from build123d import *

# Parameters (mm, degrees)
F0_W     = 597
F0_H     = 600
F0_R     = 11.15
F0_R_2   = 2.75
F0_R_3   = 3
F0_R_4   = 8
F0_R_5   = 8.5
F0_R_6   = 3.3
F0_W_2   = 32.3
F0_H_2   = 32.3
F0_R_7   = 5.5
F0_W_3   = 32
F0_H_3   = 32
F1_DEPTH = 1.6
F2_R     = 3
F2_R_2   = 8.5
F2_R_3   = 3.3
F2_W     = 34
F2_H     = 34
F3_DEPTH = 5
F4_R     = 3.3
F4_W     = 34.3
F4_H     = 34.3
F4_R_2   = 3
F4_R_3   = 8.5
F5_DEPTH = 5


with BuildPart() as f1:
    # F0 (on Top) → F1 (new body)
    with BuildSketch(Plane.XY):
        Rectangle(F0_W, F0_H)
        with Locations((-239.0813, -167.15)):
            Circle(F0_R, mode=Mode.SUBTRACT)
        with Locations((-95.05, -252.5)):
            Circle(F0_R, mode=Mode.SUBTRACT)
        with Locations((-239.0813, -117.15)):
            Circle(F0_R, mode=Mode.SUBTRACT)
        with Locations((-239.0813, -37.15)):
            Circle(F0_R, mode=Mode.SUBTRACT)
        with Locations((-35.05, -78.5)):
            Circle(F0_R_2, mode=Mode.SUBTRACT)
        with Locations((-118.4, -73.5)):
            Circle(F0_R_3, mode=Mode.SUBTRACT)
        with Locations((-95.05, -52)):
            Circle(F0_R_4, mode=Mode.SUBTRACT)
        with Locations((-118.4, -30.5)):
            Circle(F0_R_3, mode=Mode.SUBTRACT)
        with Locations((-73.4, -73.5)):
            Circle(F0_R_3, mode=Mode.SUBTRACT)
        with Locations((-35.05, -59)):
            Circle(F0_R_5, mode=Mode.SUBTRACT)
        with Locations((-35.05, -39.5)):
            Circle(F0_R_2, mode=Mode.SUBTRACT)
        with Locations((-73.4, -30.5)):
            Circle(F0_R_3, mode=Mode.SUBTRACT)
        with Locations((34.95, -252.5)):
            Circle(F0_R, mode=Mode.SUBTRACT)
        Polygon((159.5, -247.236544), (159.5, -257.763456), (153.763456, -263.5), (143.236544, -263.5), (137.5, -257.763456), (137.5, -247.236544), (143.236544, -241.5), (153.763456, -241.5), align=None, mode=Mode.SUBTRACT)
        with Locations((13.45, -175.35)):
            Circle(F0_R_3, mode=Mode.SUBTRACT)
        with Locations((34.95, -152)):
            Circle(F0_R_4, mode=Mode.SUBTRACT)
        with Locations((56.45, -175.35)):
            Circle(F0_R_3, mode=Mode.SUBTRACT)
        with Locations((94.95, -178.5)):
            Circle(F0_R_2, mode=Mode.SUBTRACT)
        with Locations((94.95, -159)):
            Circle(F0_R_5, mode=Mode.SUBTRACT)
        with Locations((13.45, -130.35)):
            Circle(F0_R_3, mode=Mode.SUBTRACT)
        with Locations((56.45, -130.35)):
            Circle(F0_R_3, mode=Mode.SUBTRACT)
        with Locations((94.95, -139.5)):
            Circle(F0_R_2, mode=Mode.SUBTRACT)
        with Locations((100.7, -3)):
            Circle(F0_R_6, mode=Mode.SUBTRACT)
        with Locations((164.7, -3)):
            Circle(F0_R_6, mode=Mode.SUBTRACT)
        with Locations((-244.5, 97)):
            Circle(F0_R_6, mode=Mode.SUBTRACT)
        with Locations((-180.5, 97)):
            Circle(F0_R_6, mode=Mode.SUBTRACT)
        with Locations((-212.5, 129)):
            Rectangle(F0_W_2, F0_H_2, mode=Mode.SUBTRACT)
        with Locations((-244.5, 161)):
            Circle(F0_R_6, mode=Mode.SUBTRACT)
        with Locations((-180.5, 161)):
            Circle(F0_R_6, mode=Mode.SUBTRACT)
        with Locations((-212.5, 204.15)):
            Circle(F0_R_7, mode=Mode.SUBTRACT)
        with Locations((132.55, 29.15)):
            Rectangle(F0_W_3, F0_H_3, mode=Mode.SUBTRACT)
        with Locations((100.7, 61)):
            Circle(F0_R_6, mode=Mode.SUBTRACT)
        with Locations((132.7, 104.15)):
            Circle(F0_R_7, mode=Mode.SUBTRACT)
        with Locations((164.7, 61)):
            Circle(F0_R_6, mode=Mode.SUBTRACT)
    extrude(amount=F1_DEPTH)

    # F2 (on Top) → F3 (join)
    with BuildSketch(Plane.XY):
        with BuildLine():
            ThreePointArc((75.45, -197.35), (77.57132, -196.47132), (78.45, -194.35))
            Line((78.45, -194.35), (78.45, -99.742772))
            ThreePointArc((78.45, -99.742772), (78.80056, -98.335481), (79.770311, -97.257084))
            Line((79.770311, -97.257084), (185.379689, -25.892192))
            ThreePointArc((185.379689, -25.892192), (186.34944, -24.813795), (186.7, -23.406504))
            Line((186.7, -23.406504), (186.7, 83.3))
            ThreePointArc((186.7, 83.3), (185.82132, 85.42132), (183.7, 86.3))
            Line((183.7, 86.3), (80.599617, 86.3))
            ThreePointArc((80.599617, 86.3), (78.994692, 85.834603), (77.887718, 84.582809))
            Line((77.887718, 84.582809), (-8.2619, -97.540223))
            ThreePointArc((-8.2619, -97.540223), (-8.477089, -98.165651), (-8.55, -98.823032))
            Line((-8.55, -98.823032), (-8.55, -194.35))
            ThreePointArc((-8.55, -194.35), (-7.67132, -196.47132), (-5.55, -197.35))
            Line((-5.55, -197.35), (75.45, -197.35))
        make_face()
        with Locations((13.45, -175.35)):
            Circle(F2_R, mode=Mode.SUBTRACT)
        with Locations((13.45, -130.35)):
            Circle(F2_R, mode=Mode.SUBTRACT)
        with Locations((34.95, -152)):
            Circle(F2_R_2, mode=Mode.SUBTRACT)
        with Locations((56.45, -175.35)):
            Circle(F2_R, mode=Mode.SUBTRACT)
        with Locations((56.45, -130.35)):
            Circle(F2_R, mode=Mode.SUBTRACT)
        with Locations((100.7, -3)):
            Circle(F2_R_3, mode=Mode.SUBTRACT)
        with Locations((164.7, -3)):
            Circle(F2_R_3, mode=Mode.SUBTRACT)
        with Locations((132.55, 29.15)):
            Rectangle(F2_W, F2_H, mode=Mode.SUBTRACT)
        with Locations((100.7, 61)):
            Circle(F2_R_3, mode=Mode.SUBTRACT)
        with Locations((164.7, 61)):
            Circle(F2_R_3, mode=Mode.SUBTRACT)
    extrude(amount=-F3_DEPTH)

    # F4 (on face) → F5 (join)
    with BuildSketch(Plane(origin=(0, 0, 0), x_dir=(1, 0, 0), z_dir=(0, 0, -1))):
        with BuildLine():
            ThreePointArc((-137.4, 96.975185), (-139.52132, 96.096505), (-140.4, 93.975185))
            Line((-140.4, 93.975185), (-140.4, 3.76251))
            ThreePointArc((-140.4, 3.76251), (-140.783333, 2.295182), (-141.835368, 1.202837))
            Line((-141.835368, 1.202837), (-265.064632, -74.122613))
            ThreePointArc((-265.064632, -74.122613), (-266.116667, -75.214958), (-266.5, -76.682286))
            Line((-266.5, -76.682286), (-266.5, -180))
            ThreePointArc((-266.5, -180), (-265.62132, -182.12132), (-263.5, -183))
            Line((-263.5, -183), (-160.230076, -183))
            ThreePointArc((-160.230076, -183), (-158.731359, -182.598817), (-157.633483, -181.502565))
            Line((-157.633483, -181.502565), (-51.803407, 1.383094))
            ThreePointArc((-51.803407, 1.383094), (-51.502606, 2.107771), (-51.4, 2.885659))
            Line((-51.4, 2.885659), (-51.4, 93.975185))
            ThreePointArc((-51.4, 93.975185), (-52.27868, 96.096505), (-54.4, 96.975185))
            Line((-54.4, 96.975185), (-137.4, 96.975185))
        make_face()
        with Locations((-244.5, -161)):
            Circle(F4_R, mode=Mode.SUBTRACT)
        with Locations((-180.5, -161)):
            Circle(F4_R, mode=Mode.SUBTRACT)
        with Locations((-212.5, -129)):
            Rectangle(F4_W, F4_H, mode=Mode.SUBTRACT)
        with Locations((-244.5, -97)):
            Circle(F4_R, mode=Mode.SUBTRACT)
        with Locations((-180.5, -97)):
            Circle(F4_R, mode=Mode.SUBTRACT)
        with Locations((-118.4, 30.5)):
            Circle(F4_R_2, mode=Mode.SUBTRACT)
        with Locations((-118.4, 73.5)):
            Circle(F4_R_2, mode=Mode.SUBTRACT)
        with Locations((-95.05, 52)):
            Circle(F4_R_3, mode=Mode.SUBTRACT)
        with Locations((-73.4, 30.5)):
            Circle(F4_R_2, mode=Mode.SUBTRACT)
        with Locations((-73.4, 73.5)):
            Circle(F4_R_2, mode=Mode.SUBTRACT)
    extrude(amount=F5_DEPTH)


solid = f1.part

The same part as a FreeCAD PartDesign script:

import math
import FreeCAD as App
import Part
import Sketcher
from FreeCAD import Vector
Q = App.Units.Quantity


def add_polygon(sketch, points):
    """Adds a closed chain of lines whose ends are joined by coincident constraints."""
    first, n = sketch.GeometryCount, len(points)
    for a, b in zip(points, points[1:] + points[:1]):
        sketch.addGeometry(Part.LineSegment(App.Vector(*a, 0), App.Vector(*b, 0)), False)
    for i in range(n):
        sketch.addConstraint(Sketcher.Constraint("Coincident", first + i, 2, first + (i + 1) % n, 1))

doc = App.newDocument("Part")
body = doc.addObject("PartDesign::Body", "Body")

# Sketch on XY plane
sketch1 = body.newObject("Sketcher::SketchObject", "Sketch")
sketch1.AttachmentSupport = (doc.getObject("XY_Plane"), [""])
sketch1.MapMode = "FlatFace"
add_polygon(sketch1, [(-298.5, 300), (-298.5, -300), (298.5, -300), (298.5, 300)])  # lines 0-3
sketch1.addGeometry(Part.Circle(Vector(-239.0813, -167.15, 0), Vector(0, 0, 1), 11.15), False)  # 4
sketch1.addGeometry(Part.Circle(Vector(-95.05, -252.5, 0), Vector(0, 0, 1), 11.15), False)  # 5
sketch1.addGeometry(Part.Circle(Vector(-239.0813, -117.15, 0), Vector(0, 0, 1), 11.15), False)  # 6
sketch1.addGeometry(Part.Circle(Vector(-239.0813, -37.15, 0), Vector(0, 0, 1), 11.15), False)  # 7
sketch1.addGeometry(Part.Circle(Vector(-118.4, -73.5, 0), Vector(0, 0, 1), 3), False)  # 8
sketch1.addGeometry(Part.Circle(Vector(-95.05, -52, 0), Vector(0, 0, 1), 8), False)  # 9
sketch1.addGeometry(Part.Circle(Vector(-118.4, -30.5, 0), Vector(0, 0, 1), 3), False)  # 10
sketch1.addGeometry(Part.Circle(Vector(-73.4, -73.5, 0), Vector(0, 0, 1), 3), False)  # 11
sketch1.addGeometry(Part.Circle(Vector(-73.4, -30.5, 0), Vector(0, 0, 1), 3), False)  # 12
sketch1.addGeometry(Part.Circle(Vector(34.95, -252.5, 0), Vector(0, 0, 1), 11.15), False)  # 13
sketch1.addGeometry(Part.Circle(Vector(13.45, -175.35, 0), Vector(0, 0, 1), 3), False)  # 14
sketch1.addGeometry(Part.Circle(Vector(56.45, -175.35, 0), Vector(0, 0, 1), 3), False)  # 15
sketch1.addGeometry(Part.Circle(Vector(34.95, -152, 0), Vector(0, 0, 1), 8), False)  # 16
add_polygon(sketch1, [(153.763456, -241.5), (159.5, -247.236544), (159.5, -257.763456), (153.763456, -263.5), (143.236544, -263.5), (137.5, -257.763456), (137.5, -247.236544), (143.236544, -241.5)])  # lines 17-24
sketch1.addGeometry(Part.Circle(Vector(94.95, -178.5, 0), Vector(0, 0, 1), 2.75), False)  # 25
sketch1.addGeometry(Part.Circle(Vector(94.95, -159, 0), Vector(0, 0, 1), 8.5), False)  # 26
sketch1.addGeometry(Part.Circle(Vector(13.45, -130.35, 0), Vector(0, 0, 1), 3), False)  # 27
sketch1.addGeometry(Part.Circle(Vector(56.45, -130.35, 0), Vector(0, 0, 1), 3), False)  # 28
sketch1.addGeometry(Part.Circle(Vector(-35.05, -78.5, 0), Vector(0, 0, 1), 2.75), False)  # 29
sketch1.addGeometry(Part.Circle(Vector(-35.05, -59, 0), Vector(0, 0, 1), 8.5), False)  # 30
sketch1.addGeometry(Part.Circle(Vector(-35.05, -39.5, 0), Vector(0, 0, 1), 2.75), False)  # 31
sketch1.addGeometry(Part.Circle(Vector(94.95, -139.5, 0), Vector(0, 0, 1), 2.75), False)  # 32
sketch1.addGeometry(Part.Circle(Vector(-244.5, 97, 0), Vector(0, 0, 1), 3.3), False)  # 33
add_polygon(sketch1, [(-196.35, 112.85), (-228.65, 112.85), (-228.65, 145.15), (-196.35, 145.15)])  # lines 34-37
sketch1.addGeometry(Part.Circle(Vector(-180.5, 97, 0), Vector(0, 0, 1), 3.3), False)  # 38
sketch1.addGeometry(Part.Circle(Vector(-244.5, 161, 0), Vector(0, 0, 1), 3.3), False)  # 39
sketch1.addGeometry(Part.Circle(Vector(-212.5, 204.15, 0), Vector(0, 0, 1), 5.5), False)  # 40
sketch1.addGeometry(Part.Circle(Vector(-180.5, 161, 0), Vector(0, 0, 1), 3.3), False)  # 41
sketch1.addGeometry(Part.Circle(Vector(100.7, -3, 0), Vector(0, 0, 1), 3.3), False)  # 42
sketch1.addGeometry(Part.Circle(Vector(164.7, -3, 0), Vector(0, 0, 1), 3.3), False)  # 43
add_polygon(sketch1, [(148.55, 13.15), (116.55, 13.15), (116.55, 45.15), (148.55, 45.15)])  # lines 44-47
sketch1.addGeometry(Part.Circle(Vector(100.7, 61, 0), Vector(0, 0, 1), 3.3), False)  # 48
sketch1.addGeometry(Part.Circle(Vector(164.7, 61, 0), Vector(0, 0, 1), 3.3), False)  # 49
sketch1.addGeometry(Part.Circle(Vector(132.7, 104.15, 0), Vector(0, 0, 1), 5.5), False)  # 50
sketch1.addConstraint([
    Sketcher.Constraint("Vertical", 0),
    Sketcher.Constraint("Horizontal", 1),
    Sketcher.Constraint("Vertical", 2),
    Sketcher.Constraint("Horizontal", 3),
    Sketcher.Constraint("Vertical", 18),
    Sketcher.Constraint("Horizontal", 20),
    Sketcher.Constraint("Vertical", 22),
    Sketcher.Constraint("Horizontal", 24),
    Sketcher.Constraint("Horizontal", 34),
    Sketcher.Constraint("Vertical", 35),
    Sketcher.Constraint("Horizontal", 36),
    Sketcher.Constraint("Vertical", 37),
    Sketcher.Constraint("Horizontal", 44),
    Sketcher.Constraint("Vertical", 45),
    Sketcher.Constraint("Horizontal", 46),
    Sketcher.Constraint("Vertical", 47),
    Sketcher.Constraint("Equal", 4, 5),
    Sketcher.Constraint("Equal", 5, 6),
    Sketcher.Constraint("Equal", 6, 7),
    Sketcher.Constraint("Equal", 8, 10),
    Sketcher.Constraint("Equal", 10, 11),
    Sketcher.Constraint("Equal", 11, 12),
    Sketcher.Constraint("Equal", 7, 13),
    Sketcher.Constraint("Equal", 12, 14),
    Sketcher.Constraint("Equal", 14, 15),
    Sketcher.Constraint("Equal", 9, 16),
    Sketcher.Constraint("Equal", 15, 27),
    Sketcher.Constraint("Equal", 27, 28),
    Sketcher.Constraint("Equal", 25, 29),
    Sketcher.Constraint("Equal", 26, 30),
    Sketcher.Constraint("Equal", 29, 31),
    Sketcher.Constraint("Equal", 31, 32),
    Sketcher.Constraint("Equal", 33, 38),
    Sketcher.Constraint("Equal", 38, 39),
    Sketcher.Constraint("Equal", 39, 41),
    Sketcher.Constraint("Equal", 41, 42),
    Sketcher.Constraint("Equal", 42, 43),
    Sketcher.Constraint("Equal", 43, 48),
    Sketcher.Constraint("Equal", 48, 49),
    Sketcher.Constraint("Equal", 40, 50),
    Sketcher.Constraint("Symmetric", 0, 2, 2, 2, -1, 1),
    Sketcher.Constraint("Perpendicular", 17, 19),
    Sketcher.Constraint("Perpendicular", 19, 21),
    Sketcher.Constraint("Perpendicular", 21, 23),
    Sketcher.Constraint("Horizontal", 8, 3, 11, 3),
    Sketcher.Constraint("Horizontal", 10, 3, 12, 3),
    Sketcher.Constraint("Horizontal", 5, 3, 13, 3),
    Sketcher.Constraint("Horizontal", 14, 3, 15, 3),
    Sketcher.Constraint("Horizontal", 27, 3, 28, 3),
    Sketcher.Constraint("Horizontal", 33, 3, 38, 3),
    Sketcher.Constraint("Horizontal", 39, 3, 41, 3),
    Sketcher.Constraint("Horizontal", 42, 3, 43, 3),
    Sketcher.Constraint("Horizontal", 48, 3, 49, 3),
    Sketcher.Constraint("Horizontal", 18, 2, 21, 2),
    Sketcher.Constraint("Horizontal", 17, 2, 22, 2),
    Sketcher.Constraint("Vertical", 4, 3, 6, 3),
    Sketcher.Constraint("Vertical", 6, 3, 7, 3),
    Sketcher.Constraint("Vertical", 5, 3, 9, 3),
    Sketcher.Constraint("Vertical", 8, 3, 10, 3),
    Sketcher.Constraint("Vertical", 11, 3, 12, 3),
    Sketcher.Constraint("Vertical", 13, 3, 16, 3),
    Sketcher.Constraint("Vertical", 25, 3, 26, 3),
    Sketcher.Constraint("Vertical", 14, 3, 27, 3),
    Sketcher.Constraint("Vertical", 15, 3, 28, 3),
    Sketcher.Constraint("Vertical", 29, 3, 30, 3),
    Sketcher.Constraint("Vertical", 30, 3, 31, 3),
    Sketcher.Constraint("Vertical", 26, 3, 32, 3),
    Sketcher.Constraint("Vertical", 33, 3, 39, 3),
    Sketcher.Constraint("Vertical", 38, 3, 41, 3),
    Sketcher.Constraint("Vertical", 42, 3, 48, 3),
    Sketcher.Constraint("Vertical", 43, 3, 49, 3),
    Sketcher.Constraint("Vertical", 20, 2, 23, 2),
    Sketcher.Constraint("Vertical", 19, 2, 24, 2),
    Sketcher.Constraint("Equal", 24, 18),
    Sketcher.Constraint("Equal", 36, 35),
    Sketcher.Constraint("Equal", 46, 45),
    Sketcher.Constraint("Diameter", 8, Q("6 mm")),
    Sketcher.Constraint("Diameter", 9, Q("16 mm")),
    Sketcher.Constraint("Diameter", 26, Q("17 mm")),
    Sketcher.Constraint("Diameter", 40, Q("11 mm")),
    Sketcher.Constraint("Diameter", 4, Q("22.3 mm")),
    Sketcher.Constraint("Diameter", 25, Q("5.5 mm")),
    Sketcher.Constraint("Diameter", 33, Q("6.6 mm")),
    Sketcher.Constraint("DistanceX", 1, 1, 1, 2, Q("597 mm")),
    Sketcher.Constraint("DistanceX", 44, 2, 44, 1, Q("32 mm")),
    Sketcher.Constraint("DistanceY", 0, 2, 0, 1, Q("600 mm")),
    Sketcher.Constraint("DistanceX", 34, 2, 34, 1, Q("32.3 mm")),
    Sketcher.Constraint("DistanceY", 9, 3, -1, 1, Q("52 mm")),
    Sketcher.Constraint("DistanceY", 16, 3, -1, 1, Q("152 mm")),
    Sketcher.Constraint("DistanceY", 26, 3, -1, 1, Q("159 mm")),
    Sketcher.Constraint("DistanceY", 30, 3, -1, 1, Q("59 mm")),
    Sketcher.Constraint("DistanceY", -1, 1, 33, 3, Q("97 mm")),
    Sketcher.Constraint("DistanceY", -1, 1, 39, 3, Q("161 mm")),
    Sketcher.Constraint("DistanceY", 42, 3, -1, 1, Q("3 mm")),
    Sketcher.Constraint("DistanceY", -1, 1, 48, 3, Q("61 mm")),
    Sketcher.Constraint("DistanceY", 4, 3, 6, 3, Q("50 mm")),
    Sketcher.Constraint("DistanceY", 6, 3, 7, 3, Q("80 mm")),
    Sketcher.Constraint("DistanceY", 5, 3, 8, 3, Q("179 mm")),
    Sketcher.Constraint("DistanceY", 8, 3, 10, 3, Q("43 mm")),
    Sketcher.Constraint("DistanceX", 8, 3, 11, 3, Q("45 mm")),
    Sketcher.Constraint("DistanceX", 5, 3, 13, 3, Q("130 mm")),
    Sketcher.Constraint("DistanceX", 14, 3, 15, 3, Q("43 mm")),
    Sketcher.Constraint("DistanceX", 16, 3, 25, 3, Q("60 mm")),
    Sketcher.Constraint("DistanceY", 13, 3, 25, 3, Q("74 mm")),
    Sketcher.Constraint("DistanceY", 14, 3, 27, 3, Q("45 mm")),
    Sketcher.Constraint("DistanceY", 29, 3, 11, 3, Q("5 mm")),
    Sketcher.Constraint("DistanceX", 9, 3, 29, 3, Q("60 mm")),
    Sketcher.Constraint("DistanceY", 29, 3, 31, 3, Q("39 mm")),
    Sketcher.Constraint("DistanceY", 25, 3, 32, 3, Q("39 mm")),
    Sketcher.Constraint("DistanceX", 33, 3, 38, 3, Q("64 mm")),
    Sketcher.Constraint("DistanceX", 39, 3, 40, 3, Q("32 mm")),
    Sketcher.Constraint("DistanceX", 42, 3, 43, 3, Q("64 mm")),
    Sketcher.Constraint("DistanceX", 48, 3, 50, 3, Q("32 mm")),
    Sketcher.Constraint("DistanceX", 3, 2, 40, 3, Q("86 mm")),
    Sketcher.Constraint("DistanceY", 19, 2, 25, 3, Q("85 mm")),
    Sketcher.Constraint("DistanceX", 21, 2, 18, 2, Q("22 mm")),
    Sketcher.Constraint("DistanceY", 35, 2, 40, 3, Q("59 mm")),
    Sketcher.Constraint("DistanceY", 44, 2, 50, 3, Q("91 mm")),
    Sketcher.Constraint("DistanceY", 5, 3, -1, 1, Q("252.5 mm")),
    Sketcher.Constraint("DistanceX", 8, 3, -1, 1, Q("118.4 mm")),
    Sketcher.Constraint("DistanceX", -1, 1, 42, 3, Q("100.7 mm")),
    Sketcher.Constraint("DistanceX", -1, 1, 17, 2, Q("159.5 mm")),
    Sketcher.Constraint("DistanceX", 14, 3, 13, 3, Q("21.5 mm")),
    Sketcher.Constraint("DistanceY", 7, 3, 40, 3, Q("241.3 mm")),
    Sketcher.Constraint("DistanceY", 4, 3, -1, 1, Q("167.15 mm")),
    Sketcher.Constraint("DistanceX", 5, 3, -1, 1, Q("95.05 mm")),
    Sketcher.Constraint("DistanceY", 14, 3, -1, 1, Q("175.35 mm")),
    Sketcher.Constraint("DistanceY", -1, 1, 50, 3, Q("104.15 mm")),
    Sketcher.Constraint("DistanceX", 34, 2, -1, 1, Q("228.65 mm")),
    Sketcher.Constraint("DistanceX", -1, 1, 44, 2, Q("116.55 mm")),
    Sketcher.Constraint("Distance", 17, Q("8.112698 mm")),
    Sketcher.Constraint("DistanceX", 4, 3, -1, 1, Q("239.0813 mm")),
])
pad1 = body.newObject("PartDesign::Pad", "Pad")
pad1.Profile = sketch1
pad1.Length = 1.6

# Sketch on XY plane
sketch2 = body.newObject("Sketcher::SketchObject", "Sketch001")
sketch2.AttachmentSupport = (doc.getObject("XY_Plane"), [""])
sketch2.MapMode = "FlatFace"
sketch2.addGeometry(Part.ArcOfCircle(Part.Circle(Vector(75.449999, -194.349999, 0), Vector(0, 0, 1), 3.000001), math.radians(-89.999978), math.radians(-0.000022)), False)  # 0
sketch2.addGeometry(Part.LineSegment(Vector(78.45, -194.35, 0), Vector(78.45, -99.742772, 0)), False)  # 1
sketch2.addGeometry(Part.ArcOfCircle(Part.Circle(Vector(81.45, -99.742772, 0), Vector(0, 0, 1), 3), math.radians(124.048625), math.radians(180.000004)), False)  # 2
sketch2.addGeometry(Part.LineSegment(Vector(79.770311, -97.257084, 0), Vector(185.379689, -25.892192, 0)), False)  # 3
sketch2.addGeometry(Part.ArcOfCircle(Part.Circle(Vector(183.7, -23.406504, 0), Vector(0, 0, 1), 3), math.radians(-55.951375), math.radians(0.000004)), False)  # 4
sketch2.addGeometry(Part.LineSegment(Vector(186.7, -23.406504, 0), Vector(186.7, 83.3, 0)), False)  # 5
sketch2.addGeometry(Part.ArcOfCircle(Part.Circle(Vector(183.699999, 83.299999, 0), Vector(0, 0, 1), 3.000001), math.radians(0.000022), math.radians(89.999978)), False)  # 6
sketch2.addGeometry(Part.LineSegment(Vector(183.7, 86.3, 0), Vector(80.599617, 86.3, 0)), False)  # 7
sketch2.addGeometry(Part.ArcOfCircle(Part.Circle(Vector(80.599618, 83.3, 0), Vector(0, 0, 1), 3), math.radians(90.000023), math.radians(154.684458)), False)  # 8
sketch2.addGeometry(Part.LineSegment(Vector(77.887718, 84.582809, 0), Vector(-8.2619, -97.540223, 0)), False)  # 9
sketch2.addGeometry(Part.ArcOfCircle(Part.Circle(Vector(-5.549997, -98.823033, 0), Vector(0, 0, 1), 3.000003), math.radians(154.684482), math.radians(179.99999)), False)  # 10
sketch2.addGeometry(Part.LineSegment(Vector(-8.55, -98.823032, 0), Vector(-8.55, -194.35, 0)), False)  # 11
sketch2.addGeometry(Part.ArcOfCircle(Part.Circle(Vector(-5.549999, -194.349999, 0), Vector(0, 0, 1), 3.000001), math.radians(-179.999978), math.radians(-90.000022)), False)  # 12
sketch2.addGeometry(Part.LineSegment(Vector(-5.55, -197.35, 0), Vector(75.45, -197.35, 0)), False)  # 13
sketch2.addGeometry(Part.Circle(Vector(13.45, -175.35, 0), Vector(0, 0, 1), 3), False)  # 14
sketch2.addGeometry(Part.Circle(Vector(34.95, -152, 0), Vector(0, 0, 1), 8.5), False)  # 15
sketch2.addGeometry(Part.Circle(Vector(13.45, -130.35, 0), Vector(0, 0, 1), 3), False)  # 16
sketch2.addGeometry(Part.Circle(Vector(56.45, -175.35, 0), Vector(0, 0, 1), 3), False)  # 17
sketch2.addGeometry(Part.Circle(Vector(56.45, -130.35, 0), Vector(0, 0, 1), 3), False)  # 18
sketch2.addGeometry(Part.Circle(Vector(100.7, -3, 0), Vector(0, 0, 1), 3.3), False)  # 19
sketch2.addGeometry(Part.Circle(Vector(164.7, -3, 0), Vector(0, 0, 1), 3.3), False)  # 20
sketch2.addGeometry(Part.Circle(Vector(100.7, 61, 0), Vector(0, 0, 1), 3.3), False)  # 21
add_polygon(sketch2, [(149.55, 12.15), (115.55, 12.15), (115.55, 46.15), (149.55, 46.15)])  # lines 22-25
sketch2.addGeometry(Part.Circle(Vector(164.7, 61, 0), Vector(0, 0, 1), 3.3), False)  # 26
sketch2.addConstraint([
    Sketcher.Constraint("Coincident", 0, 2, 1, 1),
    Sketcher.Constraint("Coincident", 1, 2, 2, 2),
    Sketcher.Constraint("Coincident", 2, 1, 3, 1),
    Sketcher.Constraint("Coincident", 3, 2, 4, 1),
    Sketcher.Constraint("Coincident", 4, 2, 5, 1),
    Sketcher.Constraint("Coincident", 5, 2, 6, 1),
    Sketcher.Constraint("Coincident", 6, 2, 7, 1),
    Sketcher.Constraint("Coincident", 7, 2, 8, 1),
    Sketcher.Constraint("Coincident", 8, 2, 9, 1),
    Sketcher.Constraint("Coincident", 9, 2, 10, 1),
    Sketcher.Constraint("Coincident", 10, 2, 11, 1),
    Sketcher.Constraint("Coincident", 11, 2, 12, 1),
    Sketcher.Constraint("Coincident", 12, 2, 13, 1),
    Sketcher.Constraint("Coincident", 13, 2, 0, 1),
    Sketcher.Constraint("Vertical", 1),
    Sketcher.Constraint("Vertical", 5),
    Sketcher.Constraint("Horizontal", 7),
    Sketcher.Constraint("Vertical", 11),
    Sketcher.Constraint("Horizontal", 13),
    Sketcher.Constraint("Horizontal", 22),
    Sketcher.Constraint("Vertical", 23),
    Sketcher.Constraint("Horizontal", 24),
    Sketcher.Constraint("Vertical", 25),
    Sketcher.Constraint("Diameter", 14, Q("6 mm")),
    Sketcher.Constraint("Diameter", 15, Q("17 mm")),
    Sketcher.Constraint("Diameter", 16, Q("6 mm")),
    Sketcher.Constraint("Diameter", 17, Q("6 mm")),
    Sketcher.Constraint("Diameter", 18, Q("6 mm")),
    Sketcher.Constraint("Radius", 0, Q("3.000001 mm")),
    Sketcher.Constraint("Radius", 2, Q("3 mm")),
    Sketcher.Constraint("Radius", 4, Q("3 mm")),
    Sketcher.Constraint("Radius", 6, Q("3.000001 mm")),
    Sketcher.Constraint("Radius", 8, Q("3 mm")),
    Sketcher.Constraint("Radius", 12, Q("3.000001 mm")),
    Sketcher.Constraint("Diameter", 19, Q("6.6 mm")),
    Sketcher.Constraint("Diameter", 20, Q("6.6 mm")),
    Sketcher.Constraint("Diameter", 21, Q("6.6 mm")),
    Sketcher.Constraint("Diameter", 26, Q("6.6 mm")),
    Sketcher.Constraint("DistanceX", 13, 1, 13, 2, Q("81 mm")),
    Sketcher.Constraint("DistanceX", 22, 2, 22, 1, Q("34 mm")),
    Sketcher.Constraint("DistanceY", 23, 1, 23, 2, Q("34 mm")),
    Sketcher.Constraint("DistanceY", 15, 3, -1, 1, Q("152 mm")),
    Sketcher.Constraint("DistanceY", 19, 3, -1, 1, Q("3 mm")),
    Sketcher.Constraint("DistanceY", 20, 3, -1, 1, Q("3 mm")),
    Sketcher.Constraint("DistanceY", -1, 1, 21, 3, Q("61 mm")),
    Sketcher.Constraint("DistanceY", -1, 1, 26, 3, Q("61 mm")),
    Sketcher.Constraint("DistanceX", 12, 3, 2, 3, Q("86.999998 mm")),
    Sketcher.Constraint("DistanceX", 12, 3, 14, 3, Q("18.999999 mm")),
    Sketcher.Constraint("DistanceY", 12, 3, 14, 3, Q("18.999999 mm")),
    Sketcher.Constraint("DistanceY", 14, 3, 16, 3, Q("45 mm")),
    Sketcher.Constraint("DistanceX", 12, 3, 16, 3, Q("18.999999 mm")),
    Sketcher.Constraint("DistanceX", 17, 3, 0, 3, Q("18.999999 mm")),
    Sketcher.Constraint("DistanceY", 0, 3, 17, 3, Q("18.999999 mm")),
    Sketcher.Constraint("DistanceX", 18, 3, 2, 3, Q("25 mm")),
    Sketcher.Constraint("DistanceY", 17, 3, 18, 3, Q("45 mm")),
    Sketcher.Constraint("DistanceX", 19, 3, 4, 3, Q("83 mm")),
    Sketcher.Constraint("DistanceX", 20, 3, 4, 3, Q("19 mm")),
    Sketcher.Constraint("DistanceX", 21, 3, 6, 3, Q("82.999999 mm")),
    Sketcher.Constraint("DistanceX", 26, 3, 6, 3, Q("18.999999 mm")),
    Sketcher.Constraint("DistanceY", 0, 2, 17, 3, Q("19 mm")),
    Sketcher.Constraint("DistanceX", 6, 2, 5, 2, Q("3 mm")),
    Sketcher.Constraint("DistanceY", 5, 2, 6, 2, Q("3 mm")),
    Sketcher.Constraint("DistanceY", 11, 2, 14, 3, Q("19 mm")),
    Sketcher.Constraint("DistanceX", 11, 2, 12, 2, Q("3 mm")),
    Sketcher.Constraint("DistanceX", -1, 1, 4, 3, Q("183.7 mm")),
    Sketcher.Constraint("DistanceY", -1, 1, 6, 3, Q("83.299999 mm")),
    Sketcher.Constraint("DistanceX", 14, 3, 15, 3, Q("21.5 mm")),
    Sketcher.Constraint("DistanceX", -1, 1, 0, 3, Q("75.449999 mm")),
    Sketcher.Constraint("DistanceY", 0, 3, -1, 1, Q("194.349999 mm")),
    Sketcher.Constraint("DistanceX", -1, 1, 22, 2, Q("115.55 mm")),
    Sketcher.Constraint("DistanceY", -1, 1, 22, 2, Q("12.15 mm")),
    Sketcher.Constraint("Radius", 10, Q("3.000003 mm")),
    Sketcher.Constraint("DistanceX", 9, 2, -1, 1, Q("8.2619 mm")),
    Sketcher.Constraint("DistanceX", 8, 2, 8, 3, Q("2.7119 mm")),
    Sketcher.Constraint("DistanceX", 8, 2, 7, 2, Q("2.711899 mm")),
    Sketcher.Constraint("Distance", 3, Q("127.460929 mm")),
    Sketcher.Constraint("Distance", 9, Q("201.470979 mm")),
    Sketcher.Constraint("DistanceX", 7, 2, 7, 1, Q("103.100383 mm")),
    Sketcher.Constraint("DistanceY", 1, 1, 1, 2, Q("94.607228 mm")),
    Sketcher.Constraint("DistanceY", 5, 1, 5, 2, Q("106.706504 mm")),
    Sketcher.Constraint("DistanceY", 11, 2, 11, 1, Q("95.526968 mm")),
    Sketcher.Constraint("DistanceY", 2, 3, -1, 1, Q("99.742772 mm")),
    Sketcher.Constraint("DistanceX", -1, 1, 2, 1, Q("79.770311 mm")),
    Sketcher.Constraint("DistanceX", -1, 1, 3, 2, Q("185.379689 mm")),
])
pad2 = body.newObject("PartDesign::Pad", "Pad001")
pad2.Profile = sketch2
pad2.Length = 5
pad2.Reversed = True

# Sketch on XY plane
sketch3 = body.newObject("Sketcher::SketchObject", "Sketch002")
sketch3.AttachmentSupport = (doc.getObject("XY_Plane"), [""])
sketch3.MapMode = "FlatFace"
sketch3.addGeometry(Part.ArcOfCircle(Part.Circle(Vector(-137.399999, -93.975184, 0), Vector(0, 0, 1), 3.000001), math.radians(-179.999978), math.radians(-90.000022)), False)  # 0
sketch3.addGeometry(Part.LineSegment(Vector(-140.4, -93.975185, 0), Vector(-140.4, -3.76251, 0)), False)  # 1
sketch3.addGeometry(Part.ArcOfCircle(Part.Circle(Vector(-143.400002, -3.762511, 0), Vector(0, 0, 1), 3.000002), math.radians(0.000026), math.radians(58.5641)), False)  # 2
sketch3.addGeometry(Part.LineSegment(Vector(-141.835368, -1.202837, 0), Vector(-265.064632, 74.122613, 0)), False)  # 3
sketch3.addGeometry(Part.ArcOfCircle(Part.Circle(Vector(-263.499998, 76.682287, 0), Vector(0, 0, 1), 3.000002), math.radians(-179.999974), math.radians(-121.4359)), False)  # 4
sketch3.addGeometry(Part.LineSegment(Vector(-266.5, 76.682286, 0), Vector(-266.5, 180, 0)), False)  # 5
sketch3.addGeometry(Part.ArcOfCircle(Part.Circle(Vector(-263.499999, 179.999999, 0), Vector(0, 0, 1), 3.000001), math.radians(90.000022), math.radians(179.999978)), False)  # 6
sketch3.addGeometry(Part.LineSegment(Vector(-263.5, 183, 0), Vector(-160.230076, 183, 0)), False)  # 7
sketch3.addGeometry(Part.ArcOfCircle(Part.Circle(Vector(-160.230074, 180.000005, 0), Vector(0, 0, 1), 2.999995), math.radians(30.056531), math.radians(90.000039)), False)  # 8
sketch3.addGeometry(Part.LineSegment(Vector(-157.633483, 181.502565, 0), Vector(-51.803407, -1.383094, 0)), False)  # 9
sketch3.addGeometry(Part.ArcOfCircle(Part.Circle(Vector(-54.399984, -2.885656, 0), Vector(0, 0, 1), 2.999984), math.radians(-0.000062), math.radians(30.056688)), False)  # 10
sketch3.addGeometry(Part.LineSegment(Vector(-51.4, -2.885659, 0), Vector(-51.4, -93.975185, 0)), False)  # 11
sketch3.addGeometry(Part.ArcOfCircle(Part.Circle(Vector(-54.400001, -93.975184, 0), Vector(0, 0, 1), 3.000001), math.radians(-89.999978), math.radians(-0.000022)), False)  # 12
sketch3.addGeometry(Part.LineSegment(Vector(-54.4, -96.975185, 0), Vector(-137.4, -96.975185, 0)), False)  # 13
sketch3.addGeometry(Part.Circle(Vector(-244.5, 161, 0), Vector(0, 0, 1), 3.3), False)  # 14
add_polygon(sketch3, [(-195.35, 146.15), (-229.65, 146.15), (-229.65, 111.85), (-195.35, 111.85)])  # lines 15-18
sketch3.addGeometry(Part.Circle(Vector(-180.5, 161, 0), Vector(0, 0, 1), 3.3), False)  # 19
sketch3.addGeometry(Part.Circle(Vector(-244.5, 97, 0), Vector(0, 0, 1), 3.3), False)  # 20
sketch3.addGeometry(Part.Circle(Vector(-180.5, 97, 0), Vector(0, 0, 1), 3.3), False)  # 21
sketch3.addGeometry(Part.Circle(Vector(-118.4, -30.5, 0), Vector(0, 0, 1), 3), False)  # 22
sketch3.addGeometry(Part.Circle(Vector(-118.4, -73.5, 0), Vector(0, 0, 1), 3), False)  # 23
sketch3.addGeometry(Part.Circle(Vector(-73.4, -30.5, 0), Vector(0, 0, 1), 3), False)  # 24
sketch3.addGeometry(Part.Circle(Vector(-95.05, -52, 0), Vector(0, 0, 1), 8.5), False)  # 25
sketch3.addGeometry(Part.Circle(Vector(-73.4, -73.5, 0), Vector(0, 0, 1), 3), False)  # 26
sketch3.addConstraint([
    Sketcher.Constraint("Tangent", 0, 1, 1, 1),
    Sketcher.Constraint("Tangent", 1, 2, 2, 1),
    Sketcher.Constraint("Tangent", 2, 2, 3, 1),
    Sketcher.Constraint("Tangent", 3, 2, 4, 2),
    Sketcher.Constraint("Tangent", 4, 1, 5, 1),
    Sketcher.Constraint("Tangent", 5, 2, 6, 2),
    Sketcher.Constraint("Tangent", 6, 1, 7, 1),
    Sketcher.Constraint("Tangent", 7, 2, 8, 2),
    Sketcher.Constraint("Tangent", 8, 1, 9, 1),
    Sketcher.Constraint("Tangent", 9, 2, 10, 2),
    Sketcher.Constraint("Tangent", 10, 1, 11, 1),
    Sketcher.Constraint("Tangent", 11, 2, 12, 2),
    Sketcher.Constraint("Tangent", 12, 1, 13, 1),
    Sketcher.Constraint("Tangent", 13, 2, 0, 2),
    Sketcher.Constraint("Vertical", 1),
    Sketcher.Constraint("Vertical", 5),
    Sketcher.Constraint("Horizontal", 7),
    Sketcher.Constraint("Vertical", 11),
    Sketcher.Constraint("Horizontal", 13),
    Sketcher.Constraint("Horizontal", 15),
    Sketcher.Constraint("Vertical", 16),
    Sketcher.Constraint("Horizontal", 17),
    Sketcher.Constraint("Vertical", 18),
    Sketcher.Constraint("Equal", 0, 2),
    Sketcher.Constraint("Equal", 2, 4),
    Sketcher.Constraint("Equal", 4, 6),
    Sketcher.Constraint("Equal", 6, 12),
    Sketcher.Constraint("Equal", 14, 19),
    Sketcher.Constraint("Equal", 19, 20),
    Sketcher.Constraint("Equal", 20, 21),
    Sketcher.Constraint("Equal", 12, 22),
    Sketcher.Constraint("Equal", 22, 23),
    Sketcher.Constraint("Equal", 23, 24),
    Sketcher.Constraint("Equal", 24, 26),
    Sketcher.Constraint("Horizontal", 14, 3, 19, 3),
    Sketcher.Constraint("Horizontal", 20, 3, 21, 3),
    Sketcher.Constraint("Horizontal", 22, 3, 24, 3),
    Sketcher.Constraint("Horizontal", 23, 3, 26, 3),
    Sketcher.Constraint("Vertical", 14, 3, 20, 3),
    Sketcher.Constraint("Vertical", 19, 3, 21, 3),
    Sketcher.Constraint("Vertical", 22, 3, 23, 3),
    Sketcher.Constraint("Vertical", 24, 3, 26, 3),
    Sketcher.Constraint("Equal", 17, 16),
    Sketcher.Constraint("Diameter", 22, Q("6 mm")),
    Sketcher.Constraint("Diameter", 25, Q("17 mm")),
    Sketcher.Constraint("Diameter", 14, Q("6.6 mm")),
    Sketcher.Constraint("DistanceX", 13, 2, 13, 1, Q("83 mm")),
    Sketcher.Constraint("DistanceX", 15, 2, 15, 1, Q("34.3 mm")),
    Sketcher.Constraint("DistanceY", -1, 1, 6, 3, Q("179.999999 mm")),
    Sketcher.Constraint("DistanceY", -1, 1, 14, 3, Q("161 mm")),
    Sketcher.Constraint("DistanceY", -1, 1, 20, 3, Q("97 mm")),
    Sketcher.Constraint("DistanceY", 25, 3, -1, 1, Q("52 mm")),
    Sketcher.Constraint("DistanceX", 6, 3, 14, 3, Q("18.999999 mm")),
    Sketcher.Constraint("DistanceX", 14, 3, 19, 3, Q("64 mm")),
    Sketcher.Constraint("DistanceX", 0, 3, 22, 3, Q("18.999999 mm")),
    Sketcher.Constraint("DistanceY", 23, 3, 22, 3, Q("43 mm")),
    Sketcher.Constraint("DistanceX", 22, 3, 24, 3, Q("45 mm")),
    Sketcher.Constraint("DistanceX", 0, 3, -1, 1, Q("137.399999 mm")),
    Sketcher.Constraint("DistanceX", 6, 3, -1, 1, Q("263.499999 mm")),
    Sketcher.Constraint("DistanceY", 22, 3, -1, 1, Q("30.5 mm")),
    Sketcher.Constraint("DistanceX", 25, 3, -1, 1, Q("95.05 mm")),
    Sketcher.Constraint("DistanceX", 15, 2, -1, 1, Q("229.65 mm")),
    Sketcher.Constraint("DistanceY", -1, 1, 15, 2, Q("146.15 mm")),
    Sketcher.Constraint("Radius", 8, Q("2.999995 mm")),
    Sketcher.Constraint("Radius", 10, Q("2.999984 mm")),
    Sketcher.Constraint("DistanceY", 2, 3, 4, 3, Q("80.444799 mm")),
    Sketcher.Constraint("DistanceX", 7, 1, 7, 2, Q("103.269924 mm")),
    Sketcher.Constraint("DistanceY", 1, 1, 1, 2, Q("90.212675 mm")),
    Sketcher.Constraint("DistanceY", 5, 1, 5, 2, Q("103.317714 mm")),
    Sketcher.Constraint("DistanceY", 11, 2, 11, 1, Q("91.089526 mm")),
])
pad3 = body.newObject("PartDesign::Pad", "Pad002")
pad3.Profile = sketch3
pad3.Length = 5
pad3.Reversed = True

doc.recompute()
